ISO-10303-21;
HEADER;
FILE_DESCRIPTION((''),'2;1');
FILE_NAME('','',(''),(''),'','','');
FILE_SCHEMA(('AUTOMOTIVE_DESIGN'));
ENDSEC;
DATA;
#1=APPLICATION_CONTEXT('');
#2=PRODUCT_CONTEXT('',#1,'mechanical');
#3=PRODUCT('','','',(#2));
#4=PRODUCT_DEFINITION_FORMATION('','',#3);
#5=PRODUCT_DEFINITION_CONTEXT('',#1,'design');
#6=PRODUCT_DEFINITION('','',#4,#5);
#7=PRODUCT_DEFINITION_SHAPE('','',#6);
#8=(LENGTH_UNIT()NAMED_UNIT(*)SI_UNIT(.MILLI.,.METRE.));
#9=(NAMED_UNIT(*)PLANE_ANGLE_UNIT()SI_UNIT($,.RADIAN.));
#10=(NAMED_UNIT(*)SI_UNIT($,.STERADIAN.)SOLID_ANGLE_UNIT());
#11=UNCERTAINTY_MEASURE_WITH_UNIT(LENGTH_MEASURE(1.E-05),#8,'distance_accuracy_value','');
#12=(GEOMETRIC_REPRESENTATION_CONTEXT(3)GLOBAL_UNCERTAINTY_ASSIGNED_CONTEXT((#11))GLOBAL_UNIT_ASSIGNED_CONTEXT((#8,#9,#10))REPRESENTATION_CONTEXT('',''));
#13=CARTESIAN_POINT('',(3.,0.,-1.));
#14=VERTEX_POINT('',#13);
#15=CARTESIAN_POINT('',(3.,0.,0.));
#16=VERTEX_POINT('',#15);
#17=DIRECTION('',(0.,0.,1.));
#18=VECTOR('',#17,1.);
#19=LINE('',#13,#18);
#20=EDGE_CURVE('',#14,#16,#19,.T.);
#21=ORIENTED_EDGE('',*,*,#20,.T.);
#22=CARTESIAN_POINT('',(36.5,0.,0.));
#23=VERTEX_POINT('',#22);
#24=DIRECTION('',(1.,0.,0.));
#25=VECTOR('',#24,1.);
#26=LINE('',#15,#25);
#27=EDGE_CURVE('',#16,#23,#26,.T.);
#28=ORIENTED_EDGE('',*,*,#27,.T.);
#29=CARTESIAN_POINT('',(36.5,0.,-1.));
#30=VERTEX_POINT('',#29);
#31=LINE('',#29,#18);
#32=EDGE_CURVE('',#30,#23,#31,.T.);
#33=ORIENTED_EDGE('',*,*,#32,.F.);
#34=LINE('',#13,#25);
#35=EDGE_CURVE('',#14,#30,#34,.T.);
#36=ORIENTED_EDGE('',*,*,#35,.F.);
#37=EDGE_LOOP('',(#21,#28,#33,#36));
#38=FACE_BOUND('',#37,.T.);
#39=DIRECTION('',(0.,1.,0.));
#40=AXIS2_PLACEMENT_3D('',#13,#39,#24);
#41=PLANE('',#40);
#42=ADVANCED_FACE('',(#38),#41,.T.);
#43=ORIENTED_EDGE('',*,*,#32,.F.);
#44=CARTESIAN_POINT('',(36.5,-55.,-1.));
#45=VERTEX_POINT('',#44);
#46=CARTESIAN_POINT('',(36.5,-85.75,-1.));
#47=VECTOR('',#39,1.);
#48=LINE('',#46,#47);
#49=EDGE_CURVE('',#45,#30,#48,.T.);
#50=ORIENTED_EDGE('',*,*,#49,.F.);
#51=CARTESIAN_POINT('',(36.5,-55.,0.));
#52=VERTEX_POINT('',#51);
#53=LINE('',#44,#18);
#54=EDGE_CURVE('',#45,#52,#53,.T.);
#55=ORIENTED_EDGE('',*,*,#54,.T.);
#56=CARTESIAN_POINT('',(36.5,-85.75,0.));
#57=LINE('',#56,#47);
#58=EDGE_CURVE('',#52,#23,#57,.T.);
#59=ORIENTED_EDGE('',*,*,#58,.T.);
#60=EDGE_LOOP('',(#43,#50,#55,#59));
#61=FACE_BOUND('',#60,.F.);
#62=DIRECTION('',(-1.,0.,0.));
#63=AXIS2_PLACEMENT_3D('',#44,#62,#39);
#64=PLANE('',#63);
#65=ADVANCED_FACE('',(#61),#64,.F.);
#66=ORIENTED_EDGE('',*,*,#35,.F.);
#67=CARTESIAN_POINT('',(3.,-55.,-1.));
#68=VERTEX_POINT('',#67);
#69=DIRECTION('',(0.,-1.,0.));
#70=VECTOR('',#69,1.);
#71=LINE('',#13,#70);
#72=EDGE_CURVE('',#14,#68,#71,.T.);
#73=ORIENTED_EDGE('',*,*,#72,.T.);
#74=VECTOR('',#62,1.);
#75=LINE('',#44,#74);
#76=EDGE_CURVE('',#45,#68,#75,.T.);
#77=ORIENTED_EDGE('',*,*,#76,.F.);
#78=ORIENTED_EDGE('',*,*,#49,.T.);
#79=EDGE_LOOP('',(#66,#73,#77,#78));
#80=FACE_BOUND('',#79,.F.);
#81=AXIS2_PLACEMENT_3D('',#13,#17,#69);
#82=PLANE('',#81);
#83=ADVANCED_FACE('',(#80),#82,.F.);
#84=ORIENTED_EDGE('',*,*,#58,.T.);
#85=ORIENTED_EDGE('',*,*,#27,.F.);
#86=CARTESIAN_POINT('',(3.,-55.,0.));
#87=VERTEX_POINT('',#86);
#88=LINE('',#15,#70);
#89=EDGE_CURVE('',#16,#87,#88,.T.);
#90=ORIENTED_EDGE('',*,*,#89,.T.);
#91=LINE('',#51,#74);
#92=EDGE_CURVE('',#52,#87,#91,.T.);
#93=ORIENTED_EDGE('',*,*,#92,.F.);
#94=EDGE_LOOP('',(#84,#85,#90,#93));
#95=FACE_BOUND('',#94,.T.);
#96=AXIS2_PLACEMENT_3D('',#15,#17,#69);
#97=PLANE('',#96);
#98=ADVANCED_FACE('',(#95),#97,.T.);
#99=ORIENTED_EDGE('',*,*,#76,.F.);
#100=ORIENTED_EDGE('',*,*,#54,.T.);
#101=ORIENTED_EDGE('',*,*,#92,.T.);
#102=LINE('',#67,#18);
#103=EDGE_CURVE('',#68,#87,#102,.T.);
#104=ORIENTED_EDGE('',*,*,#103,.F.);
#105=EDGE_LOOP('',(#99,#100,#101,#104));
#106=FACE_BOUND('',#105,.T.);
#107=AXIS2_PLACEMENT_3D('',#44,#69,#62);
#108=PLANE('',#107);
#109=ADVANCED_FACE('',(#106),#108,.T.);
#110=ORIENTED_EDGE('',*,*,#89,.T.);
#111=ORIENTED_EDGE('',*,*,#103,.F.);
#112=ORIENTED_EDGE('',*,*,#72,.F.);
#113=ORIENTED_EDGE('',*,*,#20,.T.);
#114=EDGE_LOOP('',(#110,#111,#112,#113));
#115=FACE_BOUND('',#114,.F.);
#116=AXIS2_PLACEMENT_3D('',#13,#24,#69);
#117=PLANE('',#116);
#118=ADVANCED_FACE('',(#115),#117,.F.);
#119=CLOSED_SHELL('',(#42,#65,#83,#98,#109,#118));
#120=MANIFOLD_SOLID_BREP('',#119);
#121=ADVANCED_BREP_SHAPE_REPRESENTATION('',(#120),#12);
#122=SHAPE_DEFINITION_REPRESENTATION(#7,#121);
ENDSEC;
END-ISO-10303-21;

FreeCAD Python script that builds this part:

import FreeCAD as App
import Part
import Sketcher
from FreeCAD import Vector
Q = App.Units.Quantity


def add_polygon(sketch, points):
    """Adds a closed chain of lines whose ends are joined by coincident constraints."""
    first, n = sketch.GeometryCount, len(points)
    for a, b in zip(points, points[1:] + points[:1]):
        sketch.addGeometry(Part.LineSegment(App.Vector(*a, 0), App.Vector(*b, 0)), False)
    for i in range(n):
        sketch.addConstraint(Sketcher.Constraint("Coincident", first + i, 2, first + (i + 1) % n, 1))

doc = App.newDocument("Part")
body = doc.addObject("PartDesign::Body", "Body")

sketch1 = doc.addObject("Sketcher::SketchObject", "Sketch")
body.addObject(sketch1)
sketch1.AttachmentSupport = (doc.XY_Plane, [""])
sketch1.MapMode = "FlatFace"
sketch1.AttachmentOffset = App.Placement(Vector(0, 0, -1), App.Rotation())
add_polygon(sketch1, [(3, -55), (36.5, -55), (36.5, 0), (3, 0)])
sketch1.addConstraint(Sketcher.Constraint("Horizontal", 0))
sketch1.addConstraint(Sketcher.Constraint("Vertical", 1))
sketch1.addConstraint(Sketcher.Constraint("Horizontal", 2))
sketch1.addConstraint(Sketcher.Constraint("Vertical", 3))
sketch1.addConstraint(Sketcher.Constraint("PointOnObject", 1, 2, -1))
sketch1.addConstraint(Sketcher.Constraint("DistanceY", 1, 1, 1, 2, Q("55 mm")))
sketch1.addConstraint(Sketcher.Constraint("DistanceX", 0, 1, 0, 2, Q("33.5 mm")))
sketch1.addConstraint(Sketcher.Constraint("DistanceX", -1, 1, 2, 2, Q("3 mm")))
pad1 = doc.addObject("PartDesign::Pad", "Pad")
body.addObject(pad1)
pad1.Profile = sketch1
pad1.Length = 1

doc.recompute()
